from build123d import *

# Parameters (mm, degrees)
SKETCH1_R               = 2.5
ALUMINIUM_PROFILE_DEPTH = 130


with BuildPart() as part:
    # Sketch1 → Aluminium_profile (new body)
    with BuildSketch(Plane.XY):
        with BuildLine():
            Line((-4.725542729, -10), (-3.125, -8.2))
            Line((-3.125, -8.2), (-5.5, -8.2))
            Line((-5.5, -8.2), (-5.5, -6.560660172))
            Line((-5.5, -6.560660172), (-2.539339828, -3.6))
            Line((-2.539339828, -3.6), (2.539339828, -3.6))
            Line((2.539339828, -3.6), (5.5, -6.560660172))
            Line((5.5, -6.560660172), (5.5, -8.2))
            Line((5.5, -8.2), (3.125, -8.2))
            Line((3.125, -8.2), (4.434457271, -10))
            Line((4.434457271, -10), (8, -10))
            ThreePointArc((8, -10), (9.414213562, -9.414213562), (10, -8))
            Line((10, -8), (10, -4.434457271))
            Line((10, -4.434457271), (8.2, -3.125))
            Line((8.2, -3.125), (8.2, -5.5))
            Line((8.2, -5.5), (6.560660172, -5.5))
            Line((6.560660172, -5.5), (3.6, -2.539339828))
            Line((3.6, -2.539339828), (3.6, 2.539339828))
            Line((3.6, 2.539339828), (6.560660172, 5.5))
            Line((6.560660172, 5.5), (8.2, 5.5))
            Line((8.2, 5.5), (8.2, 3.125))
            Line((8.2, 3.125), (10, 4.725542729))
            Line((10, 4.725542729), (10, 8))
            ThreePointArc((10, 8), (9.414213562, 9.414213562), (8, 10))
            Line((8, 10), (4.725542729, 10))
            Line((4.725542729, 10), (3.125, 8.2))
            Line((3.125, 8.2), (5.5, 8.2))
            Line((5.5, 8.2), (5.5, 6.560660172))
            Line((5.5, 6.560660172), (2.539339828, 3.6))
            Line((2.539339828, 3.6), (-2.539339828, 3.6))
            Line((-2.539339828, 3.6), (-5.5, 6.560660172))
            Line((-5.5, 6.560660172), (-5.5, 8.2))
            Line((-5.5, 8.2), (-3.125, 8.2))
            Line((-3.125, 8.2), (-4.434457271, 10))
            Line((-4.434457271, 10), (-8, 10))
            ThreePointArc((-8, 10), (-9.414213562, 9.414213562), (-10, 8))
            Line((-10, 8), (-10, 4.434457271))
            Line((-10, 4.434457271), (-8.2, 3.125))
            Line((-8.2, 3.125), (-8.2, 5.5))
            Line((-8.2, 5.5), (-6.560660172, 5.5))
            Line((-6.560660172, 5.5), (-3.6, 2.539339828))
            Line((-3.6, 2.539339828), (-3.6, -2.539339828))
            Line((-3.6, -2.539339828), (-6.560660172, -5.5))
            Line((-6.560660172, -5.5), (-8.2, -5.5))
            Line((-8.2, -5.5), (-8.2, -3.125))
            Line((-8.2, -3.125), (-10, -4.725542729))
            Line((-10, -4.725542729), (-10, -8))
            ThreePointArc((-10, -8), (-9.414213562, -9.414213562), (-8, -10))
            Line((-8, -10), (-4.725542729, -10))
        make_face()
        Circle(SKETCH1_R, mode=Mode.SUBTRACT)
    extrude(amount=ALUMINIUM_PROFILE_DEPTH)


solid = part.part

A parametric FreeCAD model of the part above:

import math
import FreeCAD as App
import Part
import Sketcher
from FreeCAD import Vector

doc = App.newDocument("Part")
params = doc.addObject("Spreadsheet::Sheet", "Params")
for row, (alias, value) in enumerate([
    ("sketch1_diameter", "5 mm"),
    ("sketch1_radius", "2 mm"),
    ("pad1_length", "130 mm"),
], start=1):
    params.set(f"A{row}", alias)
    params.set(f"B{row}", "=" + value)
    params.setAlias(f"B{row}", alias)

body = doc.addObject("PartDesign::Body", "Body")

sketch1 = doc.addObject("Sketcher::SketchObject", "Sketch")
body.addObject(sketch1)
sketch1.AttachmentSupport = (doc.XY_Plane, [""])
sketch1.MapMode = "FlatFace"
sketch1.addGeometry([
    Part.LineSegment(Vector(-4.7, -10, 0), Vector(-3.1, -8.2, 0)),
    Part.LineSegment(Vector(-3.1, -8.2, 0), Vector(-5.5, -8.2, 0)),
    Part.LineSegment(Vector(-5.5, -8.2, 0), Vector(-5.5, -6.6, 0)),
    Part.LineSegment(Vector(-5.5, -6.6, 0), Vector(-2.5, -3.6, 0)),
    Part.LineSegment(Vector(-2.5, -3.6, 0), Vector(2.5, -3.6, 0)),
    Part.LineSegment(Vector(2.5, -3.6, 0), Vector(5.5, -6.6, 0)),
    Part.LineSegment(Vector(5.5, -6.6, 0), Vector(5.5, -8.2, 0)),
    Part.LineSegment(Vector(5.5, -8.2, 0), Vector(3.1, -8.2, 0)),
    Part.LineSegment(Vector(3.1, -8.2, 0), Vector(4.4, -10, 0)),
    Part.LineSegment(Vector(4.4, -10, 0), Vector(8, -10, 0)),
    Part.ArcOfCircle(Part.Circle(Vector(8, -8, 0), Vector(0, 0, 1), 2), math.radians(-90), math.radians(0)),
    Part.LineSegment(Vector(10, -8, 0), Vector(10, -4.4, 0)),
    Part.LineSegment(Vector(10, -4.4, 0), Vector(8.2, -3.1, 0)),
    Part.LineSegment(Vector(8.2, -3.1, 0), Vector(8.2, -5.5, 0)),
    Part.LineSegment(Vector(8.2, -5.5, 0), Vector(6.6, -5.5, 0)),
    Part.LineSegment(Vector(6.6, -5.5, 0), Vector(3.6, -2.5, 0)),
    Part.LineSegment(Vector(3.6, -2.5, 0), Vector(3.6, 2.5, 0)),
    Part.LineSegment(Vector(3.6, 2.5, 0), Vector(6.6, 5.5, 0)),
    Part.LineSegment(Vector(6.6, 5.5, 0), Vector(8.2, 5.5, 0)),
    Part.LineSegment(Vector(8.2, 5.5, 0), Vector(8.2, 3.1, 0)),
    Part.LineSegment(Vector(8.2, 3.1, 0), Vector(10, 4.7, 0)),
    Part.LineSegment(Vector(10, 4.7, 0), Vector(10, 8, 0)),
    Part.ArcOfCircle(Part.Circle(Vector(8, 8, 0), Vector(0, 0, 1), 2), math.radians(0), math.radians(90)),
    Part.LineSegment(Vector(8, 10, 0), Vector(4.7, 10, 0)),
    Part.LineSegment(Vector(4.7, 10, 0), Vector(3.1, 8.2, 0)),
    Part.LineSegment(Vector(3.1, 8.2, 0), Vector(5.5, 8.2, 0)),
    Part.LineSegment(Vector(5.5, 8.2, 0), Vector(5.5, 6.6, 0)),
    Part.LineSegment(Vector(5.5, 6.6, 0), Vector(2.5, 3.6, 0)),
    Part.LineSegment(Vector(2.5, 3.6, 0), Vector(-2.5, 3.6, 0)),
    Part.LineSegment(Vector(-2.5, 3.6, 0), Vector(-5.5, 6.6, 0)),
    Part.LineSegment(Vector(-5.5, 6.6, 0), Vector(-5.5, 8.2, 0)),
    Part.LineSegment(Vector(-5.5, 8.2, 0), Vector(-3.1, 8.2, 0)),
    Part.LineSegment(Vector(-3.1, 8.2, 0), Vector(-4.4, 10, 0)),
    Part.LineSegment(Vector(-4.4, 10, 0), Vector(-8, 10, 0)),
    Part.ArcOfCircle(Part.Circle(Vector(-8, 8, 0), Vector(0, 0, 1), 2), math.radians(90), math.radians(180)),
    Part.LineSegment(Vector(-10, 8, 0), Vector(-10, 4.4, 0)),
    Part.LineSegment(Vector(-10, 4.4, 0), Vector(-8.2, 3.1, 0)),
    Part.LineSegment(Vector(-8.2, 3.1, 0), Vector(-8.2, 5.5, 0)),
    Part.LineSegment(Vector(-8.2, 5.5, 0), Vector(-6.6, 5.5, 0)),
    Part.LineSegment(Vector(-6.6, 5.5, 0), Vector(-3.6, 2.5, 0)),
    Part.LineSegment(Vector(-3.6, 2.5, 0), Vector(-3.6, -2.5, 0)),
    Part.LineSegment(Vector(-3.6, -2.5, 0), Vector(-6.6, -5.5, 0)),
    Part.LineSegment(Vector(-6.6, -5.5, 0), Vector(-8.2, -5.5, 0)),
    Part.LineSegment(Vector(-8.2, -5.5, 0), Vector(-8.2, -3.1, 0)),
    Part.LineSegment(Vector(-8.2, -3.1, 0), Vector(-10, -4.7, 0)),
    Part.LineSegment(Vector(-10, -4.7, 0), Vector(-10, -8, 0)),
    Part.ArcOfCircle(Part.Circle(Vector(-8, -8, 0), Vector(0, 0, 1), 2), math.radians(-180), math.radians(-90)),
    Part.LineSegment(Vector(-8, -10, 0), Vector(-4.7, -10, 0)),
    Part.Circle(Vector(0, 0, 0), Vector(0, 0, 1), 2.5),
], False)
sketch1.addConstraint([
    Sketcher.Constraint("Coincident", 0, 2, 1, 1),
    Sketcher.Constraint("Coincident", 1, 2, 2, 1),
    Sketcher.Constraint("Coincident", 2, 2, 3, 1),
    Sketcher.Constraint("Coincident", 3, 2, 4, 1),
    Sketcher.Constraint("Coincident", 4, 2, 5, 1),
    Sketcher.Constraint("Coincident", 5, 2, 6, 1),
    Sketcher.Constraint("Coincident", 6, 2, 7, 1),
    Sketcher.Constraint("Coincident", 7, 2, 8, 1),
    Sketcher.Constraint("Coincident", 8, 2, 9, 1),
    Sketcher.Constraint("Tangent", 9, 2, 10, 1),
    Sketcher.Constraint("Tangent", 10, 2, 11, 1),
    Sketcher.Constraint("Coincident", 11, 2, 12, 1),
    Sketcher.Constraint("Coincident", 12, 2, 13, 1),
    Sketcher.Constraint("Coincident", 13, 2, 14, 1),
    Sketcher.Constraint("Coincident", 14, 2, 15, 1),
    Sketcher.Constraint("Coincident", 15, 2, 16, 1),
    Sketcher.Constraint("Coincident", 16, 2, 17, 1),
    Sketcher.Constraint("Coincident", 17, 2, 18, 1),
    Sketcher.Constraint("Coincident", 18, 2, 19, 1),
    Sketcher.Constraint("Coincident", 19, 2, 20, 1),
    Sketcher.Constraint("Coincident", 20, 2, 21, 1),
    Sketcher.Constraint("Tangent", 21, 2, 22, 1),
    Sketcher.Constraint("Tangent", 22, 2, 23, 1),
    Sketcher.Constraint("Coincident", 23, 2, 24, 1),
    Sketcher.Constraint("Coincident", 24, 2, 25, 1),
    Sketcher.Constraint("Coincident", 25, 2, 26, 1),
    Sketcher.Constraint("Coincident", 26, 2, 27, 1),
    Sketcher.Constraint("Coincident", 27, 2, 28, 1),
    Sketcher.Constraint("Coincident", 28, 2, 29, 1),
    Sketcher.Constraint("Coincident", 29, 2, 30, 1),
    Sketcher.Constraint("Coincident", 30, 2, 31, 1),
    Sketcher.Constraint("Coincident", 31, 2, 32, 1),
    Sketcher.Constraint("Coincident", 32, 2, 33, 1),
    Sketcher.Constraint("Tangent", 33, 2, 34, 1),
    Sketcher.Constraint("Tangent", 34, 2, 35, 1),
    Sketcher.Constraint("Coincident", 35, 2, 36, 1),
    Sketcher.Constraint("Coincident", 36, 2, 37, 1),
    Sketcher.Constraint("Coincident", 37, 2, 38, 1),
    Sketcher.Constraint("Coincident", 38, 2, 39, 1),
    Sketcher.Constraint("Coincident", 39, 2, 40, 1),
    Sketcher.Constraint("Coincident", 40, 2, 41, 1),
    Sketcher.Constraint("Coincident", 41, 2, 42, 1),
    Sketcher.Constraint("Coincident", 42, 2, 43, 1),
    Sketcher.Constraint("Coincident", 43, 2, 44, 1),
    Sketcher.Constraint("Coincident", 44, 2, 45, 1),
    Sketcher.Constraint("Tangent", 45, 2, 46, 1),
    Sketcher.Constraint("Tangent", 46, 2, 47, 1),
    Sketcher.Constraint("Coincident", 47, 2, 0, 1),
    Sketcher.Constraint("Horizontal", 1),
    Sketcher.Constraint("Vertical", 2),
    Sketcher.Constraint("Horizontal", 4),
    Sketcher.Constraint("Vertical", 6),
    Sketcher.Constraint("Horizontal", 7),
    Sketcher.Constraint("Horizontal", 9),
    Sketcher.Constraint("Vertical", 11),
    Sketcher.Constraint("Vertical", 13),
    Sketcher.Constraint("Horizontal", 14),
    Sketcher.Constraint("Vertical", 16),
    Sketcher.Constraint("Horizontal", 18),
    Sketcher.Constraint("Vertical", 19),
    Sketcher.Constraint("Vertical", 21),
    Sketcher.Constraint("Horizontal", 23),
    Sketcher.Constraint("Horizontal", 25),
    Sketcher.Constraint("Vertical", 26),
    Sketcher.Constraint("Horizontal", 28),
    Sketcher.Constraint("Vertical", 30),
    Sketcher.Constraint("Horizontal", 31),
    Sketcher.Constraint("Horizontal", 33),
    Sketcher.Constraint("Vertical", 35),
    Sketcher.Constraint("Vertical", 37),
    Sketcher.Constraint("Horizontal", 38),
    Sketcher.Constraint("Vertical", 40),
    Sketcher.Constraint("Horizontal", 42),
    Sketcher.Constraint("Vertical", 43),
    Sketcher.Constraint("Vertical", 45),
    Sketcher.Constraint("Horizontal", 47),
    Sketcher.Constraint("Coincident", 48, 3, -1, 1),
    Sketcher.Constraint("Equal", 10, 22),
    Sketcher.Constraint("Equal", 22, 34),
    Sketcher.Constraint("Equal", 34, 46),
    Sketcher.Constraint("Symmetric", 10, 3, 34, 3, -1, 1),
    Sketcher.Constraint("Symmetric", 22, 3, 46, 3, -1, 1),
    Sketcher.Constraint("Symmetric", 0, 2, 24, 2, -1, 1),
    Sketcher.Constraint("Symmetric", 2, 2, 26, 2, -1, 1),
    Sketcher.Constraint("Symmetric", 3, 2, 27, 2, -1, 1),
    Sketcher.Constraint("Symmetric", 5, 2, 29, 2, -1, 1),
    Sketcher.Constraint("Symmetric", 7, 2, 31, 2, -1, 1),
    Sketcher.Constraint("Symmetric", 12, 2, 36, 2, -1, 1),
    Sketcher.Constraint("Symmetric", 14, 2, 38, 2, -1, 1),
    Sketcher.Constraint("Symmetric", 15, 2, 39, 2, -1, 1),
    Sketcher.Constraint("Symmetric", 17, 2, 41, 2, -1, 1),
    Sketcher.Constraint("Symmetric", 19, 2, 43, 2, -1, 1),
    Sketcher.Constraint("Symmetric", 22, 3, 34, 3, -2),
    Sketcher.Constraint("Symmetric", 2, 2, 5, 2, -2),
    Sketcher.Constraint("Symmetric", 0, 2, 7, 2, -2),
    Sketcher.Constraint("Symmetric", 19, 2, 36, 2, -2),
    Sketcher.Constraint("Symmetric", 17, 2, 38, 2, -2),
    Sketcher.Constraint("Perpendicular", 3, 5),
    Sketcher.Constraint("Parallel", 5, 15),
    Sketcher.Constraint("Perpendicular", 15, 17),
    Sketcher.Constraint("Parallel", 0, 24),
    Sketcher.Constraint("Perpendicular", 27, 29),
    Sketcher.Constraint("Parallel", 8, 32),
    Sketcher.Constraint("Parallel", 12, 36),
    Sketcher.Constraint("Perpendicular", 39, 41),
    Sketcher.Constraint("Parallel", 20, 44),
    Sketcher.Constraint("Horizontal", 16, 2, 39, 2),
    Sketcher.Constraint("Equal", 42, 2),
    Sketcher.Constraint("Equal", 33, 11),
    Sketcher.Constraint("Equal", 31, 13),
    Sketcher.Constraint("Equal", 28, 16),
    Sketcher.Constraint("Equal", 47, 21),
    Sketcher.Constraint("Equal", 8, 12),
    Sketcher.Constraint("Equal", 5, 15),
    Sketcher.Constraint("Equal", 0, 20),
    Sketcher.Constraint("Diameter", 48, 5.0),
    Sketcher.Constraint("Radius", 10, 2.0),
    Sketcher.Constraint("DistanceX", -1, 1, 10, 3, 8.0),
    Sketcher.Constraint("DistanceY", 0, 2, -1, 1, 8.2),
    Sketcher.Constraint("DistanceX", 1, 2, -1, 1, 5.5),
    Sketcher.Constraint("DistanceY", 3, 2, -1, 1, 3.6),
    Sketcher.Constraint("DistanceX", 1, 2, 1, 1, 2.375),
    Sketcher.Constraint("DistanceX", 4, 1, 4, 2, 5.07868),
    Sketcher.Constraint("Distance", 0, 2.40868),
    Sketcher.Constraint("Distance", 8, 2.225911),
])
sketch1.setExpression("Constraints[115]", "Params.sketch1_diameter")
sketch1.setExpression("Constraints[116]", "Params.sketch1_radius")
pad1 = doc.addObject("PartDesign::Pad", "Pad")
body.addObject(pad1)
pad1.Profile = sketch1
pad1.setExpression("Length", "Params.pad1_length")

doc.recompute()
